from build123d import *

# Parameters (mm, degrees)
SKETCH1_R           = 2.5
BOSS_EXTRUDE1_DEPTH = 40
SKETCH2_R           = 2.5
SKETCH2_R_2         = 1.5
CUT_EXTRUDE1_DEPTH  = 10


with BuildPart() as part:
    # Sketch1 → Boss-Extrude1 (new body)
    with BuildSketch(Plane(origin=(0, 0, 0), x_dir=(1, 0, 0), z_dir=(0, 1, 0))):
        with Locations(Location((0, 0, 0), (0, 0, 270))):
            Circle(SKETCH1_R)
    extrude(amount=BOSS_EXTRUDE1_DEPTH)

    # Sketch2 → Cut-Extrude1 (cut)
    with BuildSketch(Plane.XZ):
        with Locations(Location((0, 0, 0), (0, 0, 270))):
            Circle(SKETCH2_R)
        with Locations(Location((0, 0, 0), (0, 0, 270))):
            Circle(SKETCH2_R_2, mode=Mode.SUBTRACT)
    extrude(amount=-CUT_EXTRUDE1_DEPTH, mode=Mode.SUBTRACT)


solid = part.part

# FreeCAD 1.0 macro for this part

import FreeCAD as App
import Part
import Sketcher
from FreeCAD import Vector
Q = App.Units.Quantity

doc = App.newDocument("Part")
body = doc.addObject("PartDesign::Body", "Body")

sketch1 = body.newObject("Sketcher::SketchObject", "Sketch")
sketch1.AttachmentSupport = (doc.getObject("XZ_Plane"), [""])
sketch1.MapMode = "FlatFace"
sketch1.addGeometry(Part.Circle(Vector(0, 0, 0), Vector(0, 0, 1), 2.5), False)
sketch1.addConstraint([
    Sketcher.Constraint("Coincident", 0, 3, -1, 1),
    Sketcher.Constraint("Diameter", 0, Q("5 mm")),
])
pad1 = body.newObject("PartDesign::Pad", "Pad")
pad1.Profile = sketch1
pad1.Length = 40
pad1.Reversed = True

sketch2 = body.newObject("Sketcher::SketchObject", "Sketch001")
sketch2.AttachmentSupport = (doc.getObject("XZ_Plane"), [""])
sketch2.MapMode = "FlatFace"
sketch2.addGeometry([
    Part.Circle(Vector(0, 0, 0), Vector(0, 0, 1), 2.5),
    Part.Circle(Vector(0, 0, 0), Vector(0, 0, 1), 1.5),
], False)
sketch2.addConstraint([
    Sketcher.Constraint("Coincident", 0, 3, -1, 1),
    Sketcher.Constraint("Coincident", 1, 3, -1, 1),
    Sketcher.Constraint("Diameter", 0, Q("5 mm")),
    Sketcher.Constraint("Diameter", 1, Q("3 mm")),
])
pocket1 = body.newObject("PartDesign::Pocket", "Pocket")
pocket1.Profile = sketch2
pocket1.Length = 10

doc.recompute()
